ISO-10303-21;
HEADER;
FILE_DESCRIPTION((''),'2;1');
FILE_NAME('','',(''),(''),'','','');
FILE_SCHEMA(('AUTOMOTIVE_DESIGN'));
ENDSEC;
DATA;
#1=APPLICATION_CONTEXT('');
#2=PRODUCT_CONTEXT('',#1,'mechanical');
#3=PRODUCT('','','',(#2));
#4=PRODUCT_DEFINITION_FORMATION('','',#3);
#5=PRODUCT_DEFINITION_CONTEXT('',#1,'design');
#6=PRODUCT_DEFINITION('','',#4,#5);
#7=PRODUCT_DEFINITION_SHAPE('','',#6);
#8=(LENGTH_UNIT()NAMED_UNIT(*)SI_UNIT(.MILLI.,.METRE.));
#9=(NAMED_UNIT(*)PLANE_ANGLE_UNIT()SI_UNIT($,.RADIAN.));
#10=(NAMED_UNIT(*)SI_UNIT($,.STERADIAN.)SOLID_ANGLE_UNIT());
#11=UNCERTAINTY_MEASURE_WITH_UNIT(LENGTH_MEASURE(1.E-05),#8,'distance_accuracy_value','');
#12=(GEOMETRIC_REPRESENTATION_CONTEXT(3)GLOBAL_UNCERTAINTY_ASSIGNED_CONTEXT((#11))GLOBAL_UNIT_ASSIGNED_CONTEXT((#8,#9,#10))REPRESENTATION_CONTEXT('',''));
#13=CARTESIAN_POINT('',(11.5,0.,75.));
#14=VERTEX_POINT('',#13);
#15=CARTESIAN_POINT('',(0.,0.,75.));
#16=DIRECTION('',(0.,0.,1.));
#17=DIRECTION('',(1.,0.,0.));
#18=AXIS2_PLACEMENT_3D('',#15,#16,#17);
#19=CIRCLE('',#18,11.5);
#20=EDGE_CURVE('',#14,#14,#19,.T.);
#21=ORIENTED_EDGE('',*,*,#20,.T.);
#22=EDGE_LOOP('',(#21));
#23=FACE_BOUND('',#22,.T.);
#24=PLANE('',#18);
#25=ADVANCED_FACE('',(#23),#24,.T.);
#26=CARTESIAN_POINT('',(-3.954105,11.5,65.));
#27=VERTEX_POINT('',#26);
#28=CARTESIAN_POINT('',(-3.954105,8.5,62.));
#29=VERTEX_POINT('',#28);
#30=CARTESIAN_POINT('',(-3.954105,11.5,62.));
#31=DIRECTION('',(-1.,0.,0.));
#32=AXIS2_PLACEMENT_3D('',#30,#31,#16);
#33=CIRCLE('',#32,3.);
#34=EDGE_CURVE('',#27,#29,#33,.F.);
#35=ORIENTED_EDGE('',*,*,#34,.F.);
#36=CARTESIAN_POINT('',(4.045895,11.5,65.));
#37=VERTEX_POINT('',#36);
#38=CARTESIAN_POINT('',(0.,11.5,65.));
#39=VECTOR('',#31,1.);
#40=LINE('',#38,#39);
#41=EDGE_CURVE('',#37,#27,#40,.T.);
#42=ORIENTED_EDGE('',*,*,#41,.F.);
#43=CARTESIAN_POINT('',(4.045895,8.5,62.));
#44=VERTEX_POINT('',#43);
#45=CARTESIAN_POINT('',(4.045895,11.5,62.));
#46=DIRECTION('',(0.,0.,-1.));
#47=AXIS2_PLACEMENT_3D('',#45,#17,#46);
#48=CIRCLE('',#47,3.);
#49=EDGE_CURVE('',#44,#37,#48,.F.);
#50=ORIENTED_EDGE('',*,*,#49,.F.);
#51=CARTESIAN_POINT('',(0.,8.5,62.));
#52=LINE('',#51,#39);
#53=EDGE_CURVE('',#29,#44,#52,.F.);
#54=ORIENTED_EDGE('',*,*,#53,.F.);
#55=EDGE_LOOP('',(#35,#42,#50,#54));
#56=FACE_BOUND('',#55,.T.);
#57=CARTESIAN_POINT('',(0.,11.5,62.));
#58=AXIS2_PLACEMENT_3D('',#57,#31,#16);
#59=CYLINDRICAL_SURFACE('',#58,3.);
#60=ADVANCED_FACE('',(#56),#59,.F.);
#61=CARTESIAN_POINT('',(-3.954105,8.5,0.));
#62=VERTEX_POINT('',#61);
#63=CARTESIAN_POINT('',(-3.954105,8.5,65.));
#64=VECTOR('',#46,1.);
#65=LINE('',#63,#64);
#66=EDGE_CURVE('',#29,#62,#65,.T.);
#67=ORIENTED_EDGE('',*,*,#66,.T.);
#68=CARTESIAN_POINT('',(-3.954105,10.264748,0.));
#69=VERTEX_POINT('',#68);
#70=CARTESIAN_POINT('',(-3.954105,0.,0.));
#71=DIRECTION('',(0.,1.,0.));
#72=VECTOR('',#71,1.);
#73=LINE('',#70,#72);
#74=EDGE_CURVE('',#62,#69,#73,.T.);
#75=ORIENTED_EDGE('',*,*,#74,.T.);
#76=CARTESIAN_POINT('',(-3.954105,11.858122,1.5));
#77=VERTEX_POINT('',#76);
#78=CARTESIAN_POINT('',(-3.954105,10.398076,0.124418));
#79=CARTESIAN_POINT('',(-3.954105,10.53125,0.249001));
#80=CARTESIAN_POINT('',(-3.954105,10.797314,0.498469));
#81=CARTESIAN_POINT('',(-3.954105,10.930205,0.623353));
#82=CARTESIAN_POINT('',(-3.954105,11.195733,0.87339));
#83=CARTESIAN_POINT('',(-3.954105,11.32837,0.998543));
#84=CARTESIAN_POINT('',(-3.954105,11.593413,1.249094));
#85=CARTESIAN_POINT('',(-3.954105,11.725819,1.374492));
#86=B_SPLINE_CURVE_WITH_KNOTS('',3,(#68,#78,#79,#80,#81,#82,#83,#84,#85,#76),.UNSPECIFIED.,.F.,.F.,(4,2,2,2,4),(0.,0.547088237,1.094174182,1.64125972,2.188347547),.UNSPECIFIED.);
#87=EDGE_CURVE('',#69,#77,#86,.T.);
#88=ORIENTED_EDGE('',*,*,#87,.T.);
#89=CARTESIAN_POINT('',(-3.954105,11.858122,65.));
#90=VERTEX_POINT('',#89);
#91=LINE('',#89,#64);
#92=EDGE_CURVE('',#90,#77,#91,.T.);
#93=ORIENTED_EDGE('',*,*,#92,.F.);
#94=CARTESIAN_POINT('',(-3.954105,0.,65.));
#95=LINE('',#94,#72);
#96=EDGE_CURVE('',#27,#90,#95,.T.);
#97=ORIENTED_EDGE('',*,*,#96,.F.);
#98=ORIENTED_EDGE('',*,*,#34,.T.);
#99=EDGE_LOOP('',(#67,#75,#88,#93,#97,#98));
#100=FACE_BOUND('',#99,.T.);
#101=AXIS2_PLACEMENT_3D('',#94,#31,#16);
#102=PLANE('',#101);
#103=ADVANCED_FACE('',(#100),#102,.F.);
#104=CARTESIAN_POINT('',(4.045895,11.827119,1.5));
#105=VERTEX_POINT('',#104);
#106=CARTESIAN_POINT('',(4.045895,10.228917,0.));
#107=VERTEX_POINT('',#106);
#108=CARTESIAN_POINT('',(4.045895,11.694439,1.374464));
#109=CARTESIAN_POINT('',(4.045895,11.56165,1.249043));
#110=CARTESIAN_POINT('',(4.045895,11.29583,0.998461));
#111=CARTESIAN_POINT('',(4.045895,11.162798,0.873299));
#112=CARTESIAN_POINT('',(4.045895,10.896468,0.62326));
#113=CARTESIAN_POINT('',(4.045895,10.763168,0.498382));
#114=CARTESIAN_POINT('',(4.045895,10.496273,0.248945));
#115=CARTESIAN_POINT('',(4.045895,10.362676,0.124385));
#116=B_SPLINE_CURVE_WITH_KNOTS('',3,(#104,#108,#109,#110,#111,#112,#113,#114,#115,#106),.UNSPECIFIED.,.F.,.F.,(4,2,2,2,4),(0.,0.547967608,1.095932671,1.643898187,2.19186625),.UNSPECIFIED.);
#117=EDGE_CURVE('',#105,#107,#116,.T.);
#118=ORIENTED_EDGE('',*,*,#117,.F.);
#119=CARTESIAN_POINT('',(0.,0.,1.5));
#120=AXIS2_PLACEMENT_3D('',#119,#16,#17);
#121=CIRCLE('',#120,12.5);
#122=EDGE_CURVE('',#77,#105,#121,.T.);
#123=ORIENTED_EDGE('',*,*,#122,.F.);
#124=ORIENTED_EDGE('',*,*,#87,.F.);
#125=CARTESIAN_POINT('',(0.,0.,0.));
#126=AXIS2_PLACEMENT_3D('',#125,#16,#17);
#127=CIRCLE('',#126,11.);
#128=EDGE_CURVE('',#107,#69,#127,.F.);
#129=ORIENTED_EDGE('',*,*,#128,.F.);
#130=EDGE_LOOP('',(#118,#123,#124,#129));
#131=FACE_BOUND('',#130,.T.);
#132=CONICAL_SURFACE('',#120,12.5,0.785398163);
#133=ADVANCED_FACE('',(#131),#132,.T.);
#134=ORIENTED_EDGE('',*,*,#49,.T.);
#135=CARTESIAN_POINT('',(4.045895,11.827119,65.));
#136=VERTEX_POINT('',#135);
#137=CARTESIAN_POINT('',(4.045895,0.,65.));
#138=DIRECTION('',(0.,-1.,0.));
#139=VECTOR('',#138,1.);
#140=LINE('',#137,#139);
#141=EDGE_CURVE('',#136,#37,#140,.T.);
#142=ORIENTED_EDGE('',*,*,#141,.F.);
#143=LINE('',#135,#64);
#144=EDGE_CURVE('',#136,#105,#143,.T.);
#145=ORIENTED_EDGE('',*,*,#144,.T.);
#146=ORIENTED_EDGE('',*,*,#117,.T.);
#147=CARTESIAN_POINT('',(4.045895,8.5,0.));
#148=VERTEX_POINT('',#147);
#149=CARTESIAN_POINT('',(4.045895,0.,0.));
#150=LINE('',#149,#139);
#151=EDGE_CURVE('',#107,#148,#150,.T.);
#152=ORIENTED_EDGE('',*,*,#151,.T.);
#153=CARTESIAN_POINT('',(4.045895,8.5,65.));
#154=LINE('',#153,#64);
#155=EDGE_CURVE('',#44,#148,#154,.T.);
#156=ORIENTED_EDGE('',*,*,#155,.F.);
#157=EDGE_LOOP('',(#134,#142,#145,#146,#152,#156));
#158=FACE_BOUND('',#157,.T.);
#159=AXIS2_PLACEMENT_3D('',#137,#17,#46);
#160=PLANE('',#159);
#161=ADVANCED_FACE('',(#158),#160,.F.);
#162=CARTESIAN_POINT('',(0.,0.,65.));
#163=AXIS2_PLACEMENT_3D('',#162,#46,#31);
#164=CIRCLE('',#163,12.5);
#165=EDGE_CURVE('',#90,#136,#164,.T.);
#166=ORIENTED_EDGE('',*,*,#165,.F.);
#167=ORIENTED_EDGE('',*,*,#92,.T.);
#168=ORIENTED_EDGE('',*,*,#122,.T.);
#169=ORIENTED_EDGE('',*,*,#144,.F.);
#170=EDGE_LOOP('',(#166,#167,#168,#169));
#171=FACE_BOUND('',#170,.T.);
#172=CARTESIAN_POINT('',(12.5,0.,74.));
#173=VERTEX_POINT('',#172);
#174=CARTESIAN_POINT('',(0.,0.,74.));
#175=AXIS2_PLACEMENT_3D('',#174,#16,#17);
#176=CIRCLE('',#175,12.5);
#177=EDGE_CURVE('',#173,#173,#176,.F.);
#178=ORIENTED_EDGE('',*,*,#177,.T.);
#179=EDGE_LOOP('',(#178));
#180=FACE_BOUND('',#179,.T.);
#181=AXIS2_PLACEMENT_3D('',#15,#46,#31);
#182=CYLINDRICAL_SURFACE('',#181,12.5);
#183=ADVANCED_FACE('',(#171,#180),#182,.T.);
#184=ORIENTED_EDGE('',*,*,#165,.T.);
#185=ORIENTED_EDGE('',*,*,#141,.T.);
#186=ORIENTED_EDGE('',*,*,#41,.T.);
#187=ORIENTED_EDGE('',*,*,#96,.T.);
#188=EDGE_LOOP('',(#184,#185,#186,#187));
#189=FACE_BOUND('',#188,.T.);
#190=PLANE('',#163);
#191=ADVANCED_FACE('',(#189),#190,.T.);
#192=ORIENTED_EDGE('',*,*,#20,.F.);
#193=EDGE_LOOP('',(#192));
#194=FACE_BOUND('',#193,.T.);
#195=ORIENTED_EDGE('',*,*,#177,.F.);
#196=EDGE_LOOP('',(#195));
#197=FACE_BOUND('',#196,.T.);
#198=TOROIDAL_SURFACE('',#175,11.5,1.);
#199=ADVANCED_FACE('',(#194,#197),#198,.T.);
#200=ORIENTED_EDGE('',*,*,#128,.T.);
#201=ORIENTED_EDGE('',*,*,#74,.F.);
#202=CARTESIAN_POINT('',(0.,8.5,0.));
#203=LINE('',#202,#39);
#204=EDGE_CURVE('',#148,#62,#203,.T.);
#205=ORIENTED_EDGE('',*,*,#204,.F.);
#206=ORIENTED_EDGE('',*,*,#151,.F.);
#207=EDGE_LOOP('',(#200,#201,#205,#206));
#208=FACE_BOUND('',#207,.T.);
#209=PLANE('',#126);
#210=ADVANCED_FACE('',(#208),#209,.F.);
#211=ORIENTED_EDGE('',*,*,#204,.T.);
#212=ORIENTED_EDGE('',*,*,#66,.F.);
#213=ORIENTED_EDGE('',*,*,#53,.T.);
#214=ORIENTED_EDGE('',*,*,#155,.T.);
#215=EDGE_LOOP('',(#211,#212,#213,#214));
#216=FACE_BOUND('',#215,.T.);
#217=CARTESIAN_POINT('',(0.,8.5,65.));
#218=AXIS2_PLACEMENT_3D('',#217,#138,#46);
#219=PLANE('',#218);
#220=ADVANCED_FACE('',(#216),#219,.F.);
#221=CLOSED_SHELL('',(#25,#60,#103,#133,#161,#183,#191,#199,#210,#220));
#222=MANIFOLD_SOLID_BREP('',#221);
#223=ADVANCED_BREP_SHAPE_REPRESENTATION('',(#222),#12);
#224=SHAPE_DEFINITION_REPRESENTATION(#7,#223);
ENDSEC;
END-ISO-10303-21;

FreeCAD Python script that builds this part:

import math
import FreeCAD as App
import Part
import Sketcher

V = App.Vector


def edges_at(feature, points):
    """Names of the edges that pass closest to the given points."""
    edges = feature.Shape.Edges
    near = lambda p: min(range(len(edges)), key=lambda i: edges[i].distToShape(Part.Vertex(*p))[0])
    return sorted({f"Edge{near(p) + 1}" for p in points})

doc = App.newDocument("Part")
params = doc.addObject("Spreadsheet::Sheet", "Params")
for row, (alias, value) in enumerate([
    ("sketch1_diameter", "25 mm"),
    ("pad1_length", "75 mm"),
    ("sketch2_radius", "12.5 mm"),
    ("sketch2_width", "8 mm"),
    ("pocket1_length", "65 mm"),
    ("chamfer_size", "1.5 mm"),
    ("fillet_radius", "3 mm"),
    ("fillet2_radius", "1 mm"),
], start=1):
    params.set(f"A{row}", alias)
    params.set(f"B{row}", "=" + value)
    params.setAlias(f"B{row}", alias)

body = doc.addObject("PartDesign::Body", "Body")

# Sketch on XY plane
sketch1 = body.newObject("Sketcher::SketchObject", "Sketch")
sketch1.AttachmentSupport = (doc.getObject("XY_Plane"), [""])
sketch1.MapMode = "FlatFace"
sketch1.addGeometry(Part.Circle(V(0, 0, 0), V(0, 0, 1), 12), False)
sketch1.addConstraint(Sketcher.Constraint("Coincident", 0, 3, -1, 1))
sketch1.addConstraint(Sketcher.Constraint("Diameter", 0, 25.0))
sketch1.setExpression("Constraints[1]", "Params.sketch1_diameter")
pad1 = body.newObject("PartDesign::Pad", "Pad")
pad1.Profile = sketch1
pad1.setExpression("Length", "Params.pad1_length")

# Sketch on XY plane
sketch2 = body.newObject("Sketcher::SketchObject", "Sketch001")
sketch2.AttachmentSupport = (doc.getObject("XY_Plane"), [""])
sketch2.MapMode = "FlatFace"
sketch2.addGeometry(Part.LineSegment(V(4, 8.5, 0), V(-4, 8.5, 0)), False)
sketch2.addGeometry(Part.LineSegment(V(-4, 8.5, 0), V(-4, 11.9, 0)), False)
sketch2.addGeometry(Part.ArcOfCircle(Part.Circle(V(0, 0, 0), V(0, 0, 1), 12.5), math.radians(90), math.radians(108.44)), False)
sketch2.addGeometry(Part.ArcOfCircle(Part.Circle(V(0, 0, 0), V(0, 0, 1), 12.5), math.radians(71.11), math.radians(90)), False)
sketch2.addGeometry(Part.LineSegment(V(4, 11.8, 0), V(4, 8.5, 0)), False)
sketch2.addConstraint(Sketcher.Constraint("Coincident", 0, 2, 1, 1))
sketch2.addConstraint(Sketcher.Constraint("Coincident", 1, 2, 2, 2))
sketch2.addConstraint(Sketcher.Constraint("Tangent", 2, 1, 3, 2))
sketch2.addConstraint(Sketcher.Constraint("Coincident", 3, 1, 4, 1))
sketch2.addConstraint(Sketcher.Constraint("Coincident", 4, 2, 0, 1))
sketch2.addConstraint(Sketcher.Constraint("Horizontal", 0))
sketch2.addConstraint(Sketcher.Constraint("Vertical", 1))
sketch2.addConstraint(Sketcher.Constraint("Vertical", 4))
sketch2.addConstraint(Sketcher.Constraint("Coincident", 2, 3, -1, 1))
sketch2.addConstraint(Sketcher.Constraint("Equal", 2, 3))
sketch2.addConstraint(Sketcher.Constraint("PointOnObject", 2, 1, -2))
sketch2.addConstraint(Sketcher.Constraint("Radius", 2, 12.5))
sketch2.addConstraint(Sketcher.Constraint("DistanceX", 0, 2, 0, 1, 8.0))
sketch2.addConstraint(Sketcher.Constraint("DistanceY", 0, 2, 2, 1, 4.0))
sketch2.addConstraint(Sketcher.Constraint("DistanceY", 1, 1, 1, 2, 3.358122))
sketch2.setExpression("Constraints[11]", "Params.sketch2_radius")
sketch2.setExpression("Constraints[12]", "Params.sketch2_width")
pocket1 = body.newObject("PartDesign::Pocket", "Pocket")
pocket1.Profile = sketch2
pocket1.setExpression("Length", "Params.pocket1_length")
pocket1.Reversed = True
doc.recompute()

chamfer = body.newObject("PartDesign::Chamfer", "Chamfer")
chamfer.Base = (pocket1, edges_at(pocket1, [(-7.308, -10.141, 0)]))
chamfer.setExpression("Size", "Params.chamfer_size")
doc.recompute()

fillet = body.newObject("PartDesign::Fillet", "Fillet")
fillet.Base = (chamfer, edges_at(chamfer, [(0.046, 8.5, 65)]))
fillet.setExpression("Radius", "Params.fillet_radius")
doc.recompute()

fillet2 = body.newObject("PartDesign::Fillet", "Fillet001")
fillet2.Base = (fillet, edges_at(fillet, [(-12.5, 0, 75)]))
fillet2.setExpression("Radius", "Params.fillet2_radius")

doc.recompute()
